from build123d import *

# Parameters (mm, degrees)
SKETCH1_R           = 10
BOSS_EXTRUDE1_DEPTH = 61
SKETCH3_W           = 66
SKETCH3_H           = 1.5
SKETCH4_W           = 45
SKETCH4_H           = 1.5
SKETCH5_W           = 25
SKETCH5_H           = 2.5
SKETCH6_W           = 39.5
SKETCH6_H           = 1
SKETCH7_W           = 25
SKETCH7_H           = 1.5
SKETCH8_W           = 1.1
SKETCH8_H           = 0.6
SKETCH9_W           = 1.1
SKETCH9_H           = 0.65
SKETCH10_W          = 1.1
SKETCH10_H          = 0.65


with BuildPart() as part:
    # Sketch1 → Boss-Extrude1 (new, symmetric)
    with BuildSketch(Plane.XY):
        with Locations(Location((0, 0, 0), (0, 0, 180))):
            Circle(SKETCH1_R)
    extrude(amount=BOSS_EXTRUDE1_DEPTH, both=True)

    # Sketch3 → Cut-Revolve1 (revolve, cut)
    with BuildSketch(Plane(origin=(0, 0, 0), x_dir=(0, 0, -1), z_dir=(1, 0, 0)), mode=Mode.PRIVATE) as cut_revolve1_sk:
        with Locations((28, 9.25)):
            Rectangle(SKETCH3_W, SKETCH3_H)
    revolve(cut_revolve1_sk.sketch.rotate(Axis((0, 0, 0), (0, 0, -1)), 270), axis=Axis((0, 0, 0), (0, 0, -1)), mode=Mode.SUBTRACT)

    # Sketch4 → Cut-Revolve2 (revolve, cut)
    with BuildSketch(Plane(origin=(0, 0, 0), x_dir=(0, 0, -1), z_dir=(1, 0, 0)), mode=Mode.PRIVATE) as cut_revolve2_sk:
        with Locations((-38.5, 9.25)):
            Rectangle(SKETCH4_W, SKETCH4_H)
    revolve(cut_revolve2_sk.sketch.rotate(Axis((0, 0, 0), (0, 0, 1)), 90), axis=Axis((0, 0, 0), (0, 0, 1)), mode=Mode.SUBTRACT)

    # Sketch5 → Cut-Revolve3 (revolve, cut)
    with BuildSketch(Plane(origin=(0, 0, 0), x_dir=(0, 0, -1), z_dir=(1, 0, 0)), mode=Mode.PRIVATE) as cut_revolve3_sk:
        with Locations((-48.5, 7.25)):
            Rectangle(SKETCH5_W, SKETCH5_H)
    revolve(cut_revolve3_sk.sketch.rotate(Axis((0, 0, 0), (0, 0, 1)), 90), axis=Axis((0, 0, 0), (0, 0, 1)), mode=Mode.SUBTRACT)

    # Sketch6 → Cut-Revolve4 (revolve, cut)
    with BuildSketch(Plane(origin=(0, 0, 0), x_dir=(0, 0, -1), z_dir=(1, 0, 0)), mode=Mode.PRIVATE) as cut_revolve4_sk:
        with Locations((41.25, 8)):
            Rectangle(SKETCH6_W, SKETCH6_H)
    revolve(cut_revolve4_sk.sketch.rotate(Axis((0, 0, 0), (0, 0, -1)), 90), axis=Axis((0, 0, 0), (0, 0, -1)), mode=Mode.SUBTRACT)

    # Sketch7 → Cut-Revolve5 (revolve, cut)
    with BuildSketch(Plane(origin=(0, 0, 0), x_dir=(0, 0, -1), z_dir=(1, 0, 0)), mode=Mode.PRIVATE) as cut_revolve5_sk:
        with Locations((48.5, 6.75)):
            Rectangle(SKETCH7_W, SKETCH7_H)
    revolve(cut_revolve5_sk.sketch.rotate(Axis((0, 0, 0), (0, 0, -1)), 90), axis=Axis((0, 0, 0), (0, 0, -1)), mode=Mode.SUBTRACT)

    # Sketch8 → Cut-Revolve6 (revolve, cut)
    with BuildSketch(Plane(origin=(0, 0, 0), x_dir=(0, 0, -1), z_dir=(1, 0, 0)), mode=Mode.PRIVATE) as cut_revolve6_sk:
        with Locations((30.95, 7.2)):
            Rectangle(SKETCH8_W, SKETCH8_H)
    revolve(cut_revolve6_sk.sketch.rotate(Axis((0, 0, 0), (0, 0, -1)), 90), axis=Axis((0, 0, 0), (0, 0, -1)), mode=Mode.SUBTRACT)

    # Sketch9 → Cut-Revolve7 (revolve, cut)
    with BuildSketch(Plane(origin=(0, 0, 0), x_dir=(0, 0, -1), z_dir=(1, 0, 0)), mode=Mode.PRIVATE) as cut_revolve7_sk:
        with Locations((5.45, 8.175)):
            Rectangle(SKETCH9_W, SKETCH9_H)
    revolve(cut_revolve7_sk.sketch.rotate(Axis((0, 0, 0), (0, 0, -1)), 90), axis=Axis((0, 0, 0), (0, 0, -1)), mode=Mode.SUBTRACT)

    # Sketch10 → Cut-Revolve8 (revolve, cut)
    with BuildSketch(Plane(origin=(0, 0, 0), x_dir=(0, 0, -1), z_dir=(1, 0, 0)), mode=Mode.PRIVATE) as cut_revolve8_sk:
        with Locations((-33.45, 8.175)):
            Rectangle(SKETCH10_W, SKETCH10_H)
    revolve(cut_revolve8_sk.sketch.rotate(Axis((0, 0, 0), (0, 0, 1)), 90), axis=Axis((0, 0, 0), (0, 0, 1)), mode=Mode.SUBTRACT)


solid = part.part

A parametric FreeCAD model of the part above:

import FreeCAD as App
import Part
import Sketcher

V = App.Vector


def add_polygon(sketch, points):
    """Adds a closed chain of lines whose ends are joined by coincident constraints."""
    first, n = sketch.GeometryCount, len(points)
    for a, b in zip(points, points[1:] + points[:1]):
        sketch.addGeometry(Part.LineSegment(App.Vector(*a, 0), App.Vector(*b, 0)), False)
    for i in range(n):
        sketch.addConstraint(Sketcher.Constraint("Coincident", first + i, 2, first + (i + 1) % n, 1))

doc = App.newDocument("Part")
body = doc.addObject("PartDesign::Body", "Body")

# Sketch on XY plane
sketch1 = body.newObject("Sketcher::SketchObject", "Sketch")
sketch1.AttachmentSupport = (doc.getObject("XY_Plane"), [""])
sketch1.MapMode = "FlatFace"
sketch1.addGeometry(Part.Circle(V(0, 0, 0), V(0, 0, 1), 10), False)
sketch1.addConstraint([
    Sketcher.Constraint("Coincident", 0, 3, -1, 1),
    Sketcher.Constraint("Diameter", 0, 20.0),
])
pad1 = body.newObject("PartDesign::Pad", "Pad")
pad1.Profile = sketch1
pad1.Length = 122
pad1.Midplane = True

# Sketch on YZ plane
sketch2 = body.newObject("Sketcher::SketchObject", "Sketch001")
sketch2.AttachmentSupport = (doc.getObject("YZ_Plane"), [""])
sketch2.MapMode = "FlatFace"
add_polygon(sketch2, [(10, 5), (8.5, 5), (8.5, -61), (10, -61)])  # lines 0-3
sketch2.addConstraint([
    Sketcher.Constraint("Horizontal", 0),
    Sketcher.Constraint("Vertical", 1),
    Sketcher.Constraint("Horizontal", 2),
    Sketcher.Constraint("Vertical", 3),
    Sketcher.Constraint("DistanceY", 1, 2, 1, 1, 66.0),
    Sketcher.Constraint("DistanceX", 0, 2, 0, 1, 1.5),
    Sketcher.Constraint("DistanceY", -1, 1, 0, 2, 5.0),
    Sketcher.Constraint("DistanceX", -1, 1, 2, 2, 10.0),
])
groove = body.newObject("PartDesign::Groove", "Groove")
groove.Profile = sketch2
groove.ReferenceAxis = (sketch2, ["V_Axis"])
groove.Angle = 360

# Sketch on YZ plane
sketch3 = body.newObject("Sketcher::SketchObject", "Sketch002")
sketch3.AttachmentSupport = (doc.getObject("YZ_Plane"), [""])
sketch3.MapMode = "FlatFace"
add_polygon(sketch3, [(10, 61), (8.5, 61), (8.5, 16), (10, 16)])  # lines 0-3
sketch3.addConstraint([
    Sketcher.Constraint("Horizontal", 0),
    Sketcher.Constraint("Vertical", 1),
    Sketcher.Constraint("Horizontal", 2),
    Sketcher.Constraint("Vertical", 3),
    Sketcher.Constraint("DistanceY", 1, 2, 1, 1, 45.0),
    Sketcher.Constraint("DistanceX", 0, 2, 0, 1, 1.5),
    Sketcher.Constraint("DistanceY", -1, 1, 0, 2, 61.0),
    Sketcher.Constraint("DistanceX", -1, 1, 2, 2, 10.0),
])
groove2 = body.newObject("PartDesign::Groove", "Groove001")
groove2.Profile = sketch3
groove2.ReferenceAxis = (sketch3, ["V_Axis"])
groove2.Angle = 360

# Sketch on YZ plane
sketch4 = body.newObject("Sketcher::SketchObject", "Sketch003")
sketch4.AttachmentSupport = (doc.getObject("YZ_Plane"), [""])
sketch4.MapMode = "FlatFace"
add_polygon(sketch4, [(8.5, 61), (6, 61), (6, 36), (8.5, 36)])  # lines 0-3
sketch4.addConstraint([
    Sketcher.Constraint("Horizontal", 0),
    Sketcher.Constraint("Vertical", 1),
    Sketcher.Constraint("Horizontal", 2),
    Sketcher.Constraint("Vertical", 3),
    Sketcher.Constraint("DistanceY", 1, 2, 1, 1, 25.0),
    Sketcher.Constraint("DistanceX", 0, 2, 0, 1, 2.5),
    Sketcher.Constraint("DistanceX", -1, 1, 0, 2, 6.0),
    Sketcher.Constraint("DistanceY", -1, 1, 0, 2, 61.0),
])
groove3 = body.newObject("PartDesign::Groove", "Groove002")
groove3.Profile = sketch4
groove3.ReferenceAxis = (sketch4, ["V_Axis"])
groove3.Angle = 360

# Sketch on YZ plane
sketch5 = body.newObject("Sketcher::SketchObject", "Sketch004")
sketch5.AttachmentSupport = (doc.getObject("YZ_Plane"), [""])
sketch5.MapMode = "FlatFace"
add_polygon(sketch5, [(8.5, -21.5), (7.5, -21.5), (7.5, -61), (8.5, -61)])  # lines 0-3
sketch5.addConstraint([
    Sketcher.Constraint("Horizontal", 0),
    Sketcher.Constraint("Vertical", 1),
    Sketcher.Constraint("Horizontal", 2),
    Sketcher.Constraint("Vertical", 3),
    Sketcher.Constraint("DistanceX", 0, 2, 0, 1, 1.0),
    Sketcher.Constraint("DistanceY", 1, 2, 1, 1, 39.5),
    Sketcher.Constraint("DistanceY", 1, 2, -1, 1, 61.0),
    Sketcher.Constraint("DistanceX", -1, 1, 0, 2, 7.5),
])
groove4 = body.newObject("PartDesign::Groove", "Groove003")
groove4.Profile = sketch5
groove4.ReferenceAxis = (sketch5, ["V_Axis"])
groove4.Angle = 360

# Sketch on YZ plane
sketch6 = body.newObject("Sketcher::SketchObject", "Sketch005")
sketch6.AttachmentSupport = (doc.getObject("YZ_Plane"), [""])
sketch6.MapMode = "FlatFace"
add_polygon(sketch6, [(7.5, -36), (6, -36), (6, -61), (7.5, -61)])  # lines 0-3
sketch6.addConstraint([
    Sketcher.Constraint("Horizontal", 0),
    Sketcher.Constraint("Vertical", 1),
    Sketcher.Constraint("Horizontal", 2),
    Sketcher.Constraint("Vertical", 3),
    Sketcher.Constraint("DistanceY", 1, 2, 1, 1, 25.0),
    Sketcher.Constraint("DistanceX", 0, 2, 0, 1, 1.5),
    Sketcher.Constraint("DistanceX", -1, 1, 0, 2, 6.0),
    Sketcher.Constraint("DistanceY", 0, 2, -1, 1, 36.0),
])
groove5 = body.newObject("PartDesign::Groove", "Groove004")
groove5.Profile = sketch6
groove5.ReferenceAxis = (sketch6, ["V_Axis"])
groove5.Angle = 360

# Sketch on YZ plane
sketch7 = body.newObject("Sketcher::SketchObject", "Sketch006")
sketch7.AttachmentSupport = (doc.getObject("YZ_Plane"), [""])
sketch7.MapMode = "FlatFace"
add_polygon(sketch7, [(7.5, -30.4), (6.9, -30.4), (6.9, -31.5), (7.5, -31.5)])  # lines 0-3
sketch7.addConstraint([
    Sketcher.Constraint("Horizontal", 0),
    Sketcher.Constraint("Vertical", 1),
    Sketcher.Constraint("Horizontal", 2),
    Sketcher.Constraint("Vertical", 3),
    Sketcher.Constraint("DistanceX", 0, 2, 0, 1, 0.6),
    Sketcher.Constraint("DistanceY", 1, 2, 1, 1, 1.1),
    Sketcher.Constraint("DistanceX", -1, 1, 0, 2, 6.9),
    Sketcher.Constraint("DistanceY", 0, 2, -1, 1, 30.4),
])
groove6 = body.newObject("PartDesign::Groove", "Groove005")
groove6.Profile = sketch7
groove6.ReferenceAxis = (sketch7, ["V_Axis"])
groove6.Angle = 360

# Sketch on YZ plane
sketch8 = body.newObject("Sketcher::SketchObject", "Sketch007")
sketch8.AttachmentSupport = (doc.getObject("YZ_Plane"), [""])
sketch8.MapMode = "FlatFace"
add_polygon(sketch8, [(8.5, -4.9), (7.8, -4.9), (7.8, -6), (8.5, -6)])  # lines 0-3
sketch8.addConstraint([
    Sketcher.Constraint("Horizontal", 0),
    Sketcher.Constraint("Vertical", 1),
    Sketcher.Constraint("Horizontal", 2),
    Sketcher.Constraint("Vertical", 3),
    Sketcher.Constraint("DistanceY", 1, 2, 1, 1, 1.1),
    Sketcher.Constraint("DistanceY", 1, 2, -1, 1, 6.0),
    Sketcher.Constraint("DistanceX", 0, 2, 0, 1, 0.65),
    Sketcher.Constraint("DistanceX", -1, 1, 2, 2, 8.5),
])
groove7 = body.newObject("PartDesign::Groove", "Groove006")
groove7.Profile = sketch8
groove7.ReferenceAxis = (sketch8, ["V_Axis"])
groove7.Angle = 360

# Sketch on YZ plane
sketch9 = body.newObject("Sketcher::SketchObject", "Sketch008")
sketch9.AttachmentSupport = (doc.getObject("YZ_Plane"), [""])
sketch9.MapMode = "FlatFace"
add_polygon(sketch9, [(8.5, 34), (7.8, 34), (7.8, 32.9), (8.5, 32.9)])  # lines 0-3
sketch9.addConstraint([
    Sketcher.Constraint("Horizontal", 0),
    Sketcher.Constraint("Vertical", 1),
    Sketcher.Constraint("Horizontal", 2),
    Sketcher.Constraint("Vertical", 3),
    Sketcher.Constraint("DistanceY", 1, 2, 1, 1, 1.1),
    Sketcher.Constraint("DistanceY", -1, 1, 0, 2, 34.0),
    Sketcher.Constraint("DistanceX", 0, 2, 0, 1, 0.65),
    Sketcher.Constraint("DistanceX", -1, 1, 2, 2, 8.5),
])
groove8 = body.newObject("PartDesign::Groove", "Groove007")
groove8.Profile = sketch9
groove8.ReferenceAxis = (sketch9, ["V_Axis"])
groove8.Angle = 360

doc.recompute()
